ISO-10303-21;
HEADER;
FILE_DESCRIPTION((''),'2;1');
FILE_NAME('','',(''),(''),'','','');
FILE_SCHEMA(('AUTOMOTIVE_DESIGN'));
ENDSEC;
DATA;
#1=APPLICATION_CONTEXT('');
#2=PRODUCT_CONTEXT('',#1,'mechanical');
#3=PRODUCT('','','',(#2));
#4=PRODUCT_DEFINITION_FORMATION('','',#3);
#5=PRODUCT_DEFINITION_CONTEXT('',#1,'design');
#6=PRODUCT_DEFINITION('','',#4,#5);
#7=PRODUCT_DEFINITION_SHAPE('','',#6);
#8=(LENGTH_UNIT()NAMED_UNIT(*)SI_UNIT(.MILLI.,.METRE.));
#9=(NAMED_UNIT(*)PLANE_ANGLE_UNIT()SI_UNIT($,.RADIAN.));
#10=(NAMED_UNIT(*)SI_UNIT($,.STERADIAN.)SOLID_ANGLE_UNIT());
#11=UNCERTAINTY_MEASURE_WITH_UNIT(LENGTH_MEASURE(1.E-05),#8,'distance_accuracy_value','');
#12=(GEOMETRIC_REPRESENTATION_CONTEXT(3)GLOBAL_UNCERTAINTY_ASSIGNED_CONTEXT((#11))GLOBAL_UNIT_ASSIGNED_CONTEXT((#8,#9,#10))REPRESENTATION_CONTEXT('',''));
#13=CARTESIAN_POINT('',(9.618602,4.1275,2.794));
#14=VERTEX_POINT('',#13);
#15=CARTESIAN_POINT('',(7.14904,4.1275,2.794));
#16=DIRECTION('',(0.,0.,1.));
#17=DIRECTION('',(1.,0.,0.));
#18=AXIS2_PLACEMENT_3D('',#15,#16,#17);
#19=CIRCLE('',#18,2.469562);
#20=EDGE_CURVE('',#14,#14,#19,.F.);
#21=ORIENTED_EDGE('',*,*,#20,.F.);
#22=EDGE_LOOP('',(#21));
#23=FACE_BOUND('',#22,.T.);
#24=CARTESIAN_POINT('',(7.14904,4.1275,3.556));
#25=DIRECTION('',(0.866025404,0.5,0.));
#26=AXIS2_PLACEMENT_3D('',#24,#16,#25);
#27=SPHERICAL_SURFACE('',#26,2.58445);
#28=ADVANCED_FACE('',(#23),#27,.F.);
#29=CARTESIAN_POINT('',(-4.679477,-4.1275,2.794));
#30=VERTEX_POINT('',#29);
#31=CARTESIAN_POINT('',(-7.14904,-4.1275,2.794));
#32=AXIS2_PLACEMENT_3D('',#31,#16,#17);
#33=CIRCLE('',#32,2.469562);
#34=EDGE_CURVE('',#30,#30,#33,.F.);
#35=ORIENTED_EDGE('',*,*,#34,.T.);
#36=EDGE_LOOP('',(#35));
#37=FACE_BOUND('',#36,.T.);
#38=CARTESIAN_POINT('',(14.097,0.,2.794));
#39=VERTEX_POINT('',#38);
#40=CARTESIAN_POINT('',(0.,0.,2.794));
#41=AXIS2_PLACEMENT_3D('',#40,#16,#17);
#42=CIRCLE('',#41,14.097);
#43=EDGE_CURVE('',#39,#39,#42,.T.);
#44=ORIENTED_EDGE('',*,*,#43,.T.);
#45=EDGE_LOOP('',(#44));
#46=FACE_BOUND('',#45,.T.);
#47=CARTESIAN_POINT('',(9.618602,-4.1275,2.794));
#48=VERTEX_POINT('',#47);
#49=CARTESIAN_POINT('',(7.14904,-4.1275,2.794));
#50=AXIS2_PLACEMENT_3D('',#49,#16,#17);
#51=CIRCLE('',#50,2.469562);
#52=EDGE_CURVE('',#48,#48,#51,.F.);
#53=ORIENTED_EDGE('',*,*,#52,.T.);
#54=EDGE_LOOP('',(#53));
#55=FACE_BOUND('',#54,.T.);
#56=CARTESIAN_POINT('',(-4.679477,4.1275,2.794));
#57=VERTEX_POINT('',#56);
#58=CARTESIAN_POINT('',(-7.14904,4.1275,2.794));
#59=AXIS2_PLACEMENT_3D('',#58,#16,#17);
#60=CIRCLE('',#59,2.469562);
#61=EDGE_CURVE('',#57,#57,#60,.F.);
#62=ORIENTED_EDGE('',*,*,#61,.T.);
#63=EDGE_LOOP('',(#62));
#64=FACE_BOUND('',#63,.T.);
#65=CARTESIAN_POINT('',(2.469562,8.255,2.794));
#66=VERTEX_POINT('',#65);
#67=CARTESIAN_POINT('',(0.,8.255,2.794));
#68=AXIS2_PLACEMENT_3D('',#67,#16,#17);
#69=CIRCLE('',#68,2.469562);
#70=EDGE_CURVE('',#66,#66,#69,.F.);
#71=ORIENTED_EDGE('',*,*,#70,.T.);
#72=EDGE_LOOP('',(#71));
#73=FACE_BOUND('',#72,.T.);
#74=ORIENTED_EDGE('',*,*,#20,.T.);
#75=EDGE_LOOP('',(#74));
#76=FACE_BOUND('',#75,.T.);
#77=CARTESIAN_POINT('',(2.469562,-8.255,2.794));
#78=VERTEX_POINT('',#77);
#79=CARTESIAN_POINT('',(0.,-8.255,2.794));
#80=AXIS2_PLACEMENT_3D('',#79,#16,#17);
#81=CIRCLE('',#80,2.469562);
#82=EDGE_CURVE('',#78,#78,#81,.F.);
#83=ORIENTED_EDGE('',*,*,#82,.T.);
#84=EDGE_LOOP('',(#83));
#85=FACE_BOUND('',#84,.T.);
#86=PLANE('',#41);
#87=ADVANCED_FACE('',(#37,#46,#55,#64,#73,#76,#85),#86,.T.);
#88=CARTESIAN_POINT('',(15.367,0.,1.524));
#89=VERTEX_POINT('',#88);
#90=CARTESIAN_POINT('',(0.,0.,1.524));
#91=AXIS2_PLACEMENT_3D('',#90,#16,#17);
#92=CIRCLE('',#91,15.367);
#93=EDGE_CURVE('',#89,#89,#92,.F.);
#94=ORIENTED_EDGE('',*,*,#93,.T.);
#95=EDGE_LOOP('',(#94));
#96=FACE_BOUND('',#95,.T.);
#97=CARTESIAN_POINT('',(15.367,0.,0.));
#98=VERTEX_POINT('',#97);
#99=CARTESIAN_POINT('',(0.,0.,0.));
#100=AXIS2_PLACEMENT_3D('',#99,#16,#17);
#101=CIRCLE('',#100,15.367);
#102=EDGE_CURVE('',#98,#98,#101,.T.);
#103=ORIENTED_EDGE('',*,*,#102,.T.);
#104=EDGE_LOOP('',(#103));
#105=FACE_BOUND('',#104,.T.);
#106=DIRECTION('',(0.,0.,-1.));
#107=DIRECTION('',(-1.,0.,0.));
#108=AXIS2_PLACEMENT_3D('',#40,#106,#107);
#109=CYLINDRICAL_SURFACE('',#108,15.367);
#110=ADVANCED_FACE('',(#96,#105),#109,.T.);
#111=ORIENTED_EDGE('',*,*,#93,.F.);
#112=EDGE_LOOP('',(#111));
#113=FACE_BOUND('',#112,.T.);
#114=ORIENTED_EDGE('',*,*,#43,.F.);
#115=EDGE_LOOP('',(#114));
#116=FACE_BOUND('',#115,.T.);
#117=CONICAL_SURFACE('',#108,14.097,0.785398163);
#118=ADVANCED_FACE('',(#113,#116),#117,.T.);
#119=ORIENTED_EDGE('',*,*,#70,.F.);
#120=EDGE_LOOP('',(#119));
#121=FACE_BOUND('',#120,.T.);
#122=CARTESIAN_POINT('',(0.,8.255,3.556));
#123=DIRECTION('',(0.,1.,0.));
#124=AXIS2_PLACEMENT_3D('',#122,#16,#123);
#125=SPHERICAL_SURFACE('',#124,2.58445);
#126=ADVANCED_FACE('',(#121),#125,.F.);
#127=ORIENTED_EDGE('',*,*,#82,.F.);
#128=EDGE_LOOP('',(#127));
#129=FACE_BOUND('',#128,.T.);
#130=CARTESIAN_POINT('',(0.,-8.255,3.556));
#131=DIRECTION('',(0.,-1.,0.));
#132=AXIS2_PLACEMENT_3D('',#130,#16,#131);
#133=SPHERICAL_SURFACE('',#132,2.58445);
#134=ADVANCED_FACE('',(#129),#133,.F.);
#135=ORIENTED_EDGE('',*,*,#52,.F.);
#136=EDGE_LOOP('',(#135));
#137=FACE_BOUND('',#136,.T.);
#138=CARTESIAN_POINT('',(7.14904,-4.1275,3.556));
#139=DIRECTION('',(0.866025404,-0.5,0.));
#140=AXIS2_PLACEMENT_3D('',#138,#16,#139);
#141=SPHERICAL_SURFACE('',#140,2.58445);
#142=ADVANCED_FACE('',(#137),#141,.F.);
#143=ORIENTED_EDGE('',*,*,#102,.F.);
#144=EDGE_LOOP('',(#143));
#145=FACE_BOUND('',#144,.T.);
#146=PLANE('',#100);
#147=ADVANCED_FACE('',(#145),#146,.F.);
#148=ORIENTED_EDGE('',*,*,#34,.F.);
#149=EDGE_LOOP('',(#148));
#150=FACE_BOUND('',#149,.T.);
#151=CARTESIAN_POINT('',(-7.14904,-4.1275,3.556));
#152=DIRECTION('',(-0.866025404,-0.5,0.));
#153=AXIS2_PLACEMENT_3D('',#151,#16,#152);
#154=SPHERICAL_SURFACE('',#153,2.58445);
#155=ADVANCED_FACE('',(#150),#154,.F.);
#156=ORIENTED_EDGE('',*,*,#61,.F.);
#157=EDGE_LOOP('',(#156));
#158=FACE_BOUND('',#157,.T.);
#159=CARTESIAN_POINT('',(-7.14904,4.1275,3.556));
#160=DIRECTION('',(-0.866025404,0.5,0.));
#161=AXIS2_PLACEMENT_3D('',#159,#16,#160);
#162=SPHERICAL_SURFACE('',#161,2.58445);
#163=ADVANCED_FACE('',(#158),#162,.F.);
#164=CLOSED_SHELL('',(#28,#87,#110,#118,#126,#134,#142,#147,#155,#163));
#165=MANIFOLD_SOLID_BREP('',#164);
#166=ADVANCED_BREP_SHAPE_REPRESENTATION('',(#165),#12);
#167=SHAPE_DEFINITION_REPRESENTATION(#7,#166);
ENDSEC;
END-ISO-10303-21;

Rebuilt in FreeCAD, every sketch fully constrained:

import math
import FreeCAD as App
import Part
import Sketcher
Q = App.Units.Quantity


def edges_at(feature, points):
    """Names of the edges that pass closest to the given points."""
    edges = feature.Shape.Edges
    near = lambda p: min(range(len(edges)), key=lambda i: edges[i].distToShape(Part.Vertex(*p))[0])
    return sorted({f"Edge{near(p) + 1}" for p in points})

doc = App.newDocument("Part")
body = doc.addObject("PartDesign::Body", "Body")

# Sketch on XY plane
sketch1 = body.newObject("Sketcher::SketchObject", "Sketch")
sketch1.AttachmentSupport = (doc.getObject("XY_Plane"), [""])
sketch1.MapMode = "FlatFace"
sketch1.addGeometry(Part.Circle(App.Vector(0, 0, 0), App.Vector(0, 0, 1), 15.367), False)
sketch1.addConstraint(Sketcher.Constraint("Coincident", 0, 3, -1, 1))
sketch1.addConstraint(Sketcher.Constraint("Diameter", 0, Q("1.21 in")))
pad1 = body.newObject("PartDesign::Pad", "Pad")
pad1.Profile = sketch1
pad1.Length = Q("0.11 in")

# Sketch on YZ plane
sketch2 = body.newObject("Sketcher::SketchObject", "Sketch001")
sketch2.AttachmentSupport = (doc.getObject("YZ_Plane"), [""])
sketch2.MapMode = "FlatFace"
sketch2.addGeometry(Part.LineSegment(App.Vector(8.255, 6.14045, 0), App.Vector(8.255, 0.97155, 0)), False)
sketch2.addGeometry(Part.ArcOfCircle(Part.Circle(App.Vector(8.255, 3.556, 0), App.Vector(0, 0, 1), 2.58445), math.radians(-90), math.radians(90)), False)
sketch2.addGeometry(Part.LineSegment(App.Vector(8.255, 6.14045, 0), App.Vector(8.255, 0.97155, 0)), True)  # axis
sketch2.addConstraint(Sketcher.Constraint("Coincident", 0, 1, 1, 2))
sketch2.addConstraint(Sketcher.Constraint("Coincident", 1, 1, 0, 2))
sketch2.addConstraint(Sketcher.Constraint("Vertical", 0))
sketch2.addConstraint(Sketcher.Constraint("Vertical", 2))
sketch2.addConstraint(Sketcher.Constraint("Coincident", 2, 1, 0, 1))
sketch2.addConstraint(Sketcher.Constraint("Vertical", 1, 3, 0, 1))
sketch2.addConstraint(Sketcher.Constraint("Equal", 0, 2))
sketch2.addConstraint(Sketcher.Constraint("DistanceY", -1, 1, 1, 3, Q("0.14 in")))
sketch2.addConstraint(Sketcher.Constraint("DistanceY", 0, 2, 0, 1, Q("0.2035 in")))
sketch2.addConstraint(Sketcher.Constraint("DistanceX", -1, 1, 1, 3, Q("0.325 in")))
groove = body.newObject("PartDesign::Groove", "Groove")
groove.Profile = sketch2
groove.ReferenceAxis = (sketch2, ["Axis0"])
groove.Angle = 360
doc.recompute()

polarpattern = body.newObject("PartDesign::PolarPattern", "PolarPattern")
polarpattern.Originals = [groove]
polarpattern.Axis = (doc.getObject("Z_Axis"), [""])
polarpattern.Angle = 360
polarpattern.Occurrences = 6
body.Tip = polarpattern
doc.recompute()

chamfer = body.newObject("PartDesign::Chamfer", "Chamfer")
chamfer.Base = (polarpattern, edges_at(polarpattern, [(-15.367, 0, 2.794)]))
chamfer.Size = Q("0.05 in")

doc.recompute()
